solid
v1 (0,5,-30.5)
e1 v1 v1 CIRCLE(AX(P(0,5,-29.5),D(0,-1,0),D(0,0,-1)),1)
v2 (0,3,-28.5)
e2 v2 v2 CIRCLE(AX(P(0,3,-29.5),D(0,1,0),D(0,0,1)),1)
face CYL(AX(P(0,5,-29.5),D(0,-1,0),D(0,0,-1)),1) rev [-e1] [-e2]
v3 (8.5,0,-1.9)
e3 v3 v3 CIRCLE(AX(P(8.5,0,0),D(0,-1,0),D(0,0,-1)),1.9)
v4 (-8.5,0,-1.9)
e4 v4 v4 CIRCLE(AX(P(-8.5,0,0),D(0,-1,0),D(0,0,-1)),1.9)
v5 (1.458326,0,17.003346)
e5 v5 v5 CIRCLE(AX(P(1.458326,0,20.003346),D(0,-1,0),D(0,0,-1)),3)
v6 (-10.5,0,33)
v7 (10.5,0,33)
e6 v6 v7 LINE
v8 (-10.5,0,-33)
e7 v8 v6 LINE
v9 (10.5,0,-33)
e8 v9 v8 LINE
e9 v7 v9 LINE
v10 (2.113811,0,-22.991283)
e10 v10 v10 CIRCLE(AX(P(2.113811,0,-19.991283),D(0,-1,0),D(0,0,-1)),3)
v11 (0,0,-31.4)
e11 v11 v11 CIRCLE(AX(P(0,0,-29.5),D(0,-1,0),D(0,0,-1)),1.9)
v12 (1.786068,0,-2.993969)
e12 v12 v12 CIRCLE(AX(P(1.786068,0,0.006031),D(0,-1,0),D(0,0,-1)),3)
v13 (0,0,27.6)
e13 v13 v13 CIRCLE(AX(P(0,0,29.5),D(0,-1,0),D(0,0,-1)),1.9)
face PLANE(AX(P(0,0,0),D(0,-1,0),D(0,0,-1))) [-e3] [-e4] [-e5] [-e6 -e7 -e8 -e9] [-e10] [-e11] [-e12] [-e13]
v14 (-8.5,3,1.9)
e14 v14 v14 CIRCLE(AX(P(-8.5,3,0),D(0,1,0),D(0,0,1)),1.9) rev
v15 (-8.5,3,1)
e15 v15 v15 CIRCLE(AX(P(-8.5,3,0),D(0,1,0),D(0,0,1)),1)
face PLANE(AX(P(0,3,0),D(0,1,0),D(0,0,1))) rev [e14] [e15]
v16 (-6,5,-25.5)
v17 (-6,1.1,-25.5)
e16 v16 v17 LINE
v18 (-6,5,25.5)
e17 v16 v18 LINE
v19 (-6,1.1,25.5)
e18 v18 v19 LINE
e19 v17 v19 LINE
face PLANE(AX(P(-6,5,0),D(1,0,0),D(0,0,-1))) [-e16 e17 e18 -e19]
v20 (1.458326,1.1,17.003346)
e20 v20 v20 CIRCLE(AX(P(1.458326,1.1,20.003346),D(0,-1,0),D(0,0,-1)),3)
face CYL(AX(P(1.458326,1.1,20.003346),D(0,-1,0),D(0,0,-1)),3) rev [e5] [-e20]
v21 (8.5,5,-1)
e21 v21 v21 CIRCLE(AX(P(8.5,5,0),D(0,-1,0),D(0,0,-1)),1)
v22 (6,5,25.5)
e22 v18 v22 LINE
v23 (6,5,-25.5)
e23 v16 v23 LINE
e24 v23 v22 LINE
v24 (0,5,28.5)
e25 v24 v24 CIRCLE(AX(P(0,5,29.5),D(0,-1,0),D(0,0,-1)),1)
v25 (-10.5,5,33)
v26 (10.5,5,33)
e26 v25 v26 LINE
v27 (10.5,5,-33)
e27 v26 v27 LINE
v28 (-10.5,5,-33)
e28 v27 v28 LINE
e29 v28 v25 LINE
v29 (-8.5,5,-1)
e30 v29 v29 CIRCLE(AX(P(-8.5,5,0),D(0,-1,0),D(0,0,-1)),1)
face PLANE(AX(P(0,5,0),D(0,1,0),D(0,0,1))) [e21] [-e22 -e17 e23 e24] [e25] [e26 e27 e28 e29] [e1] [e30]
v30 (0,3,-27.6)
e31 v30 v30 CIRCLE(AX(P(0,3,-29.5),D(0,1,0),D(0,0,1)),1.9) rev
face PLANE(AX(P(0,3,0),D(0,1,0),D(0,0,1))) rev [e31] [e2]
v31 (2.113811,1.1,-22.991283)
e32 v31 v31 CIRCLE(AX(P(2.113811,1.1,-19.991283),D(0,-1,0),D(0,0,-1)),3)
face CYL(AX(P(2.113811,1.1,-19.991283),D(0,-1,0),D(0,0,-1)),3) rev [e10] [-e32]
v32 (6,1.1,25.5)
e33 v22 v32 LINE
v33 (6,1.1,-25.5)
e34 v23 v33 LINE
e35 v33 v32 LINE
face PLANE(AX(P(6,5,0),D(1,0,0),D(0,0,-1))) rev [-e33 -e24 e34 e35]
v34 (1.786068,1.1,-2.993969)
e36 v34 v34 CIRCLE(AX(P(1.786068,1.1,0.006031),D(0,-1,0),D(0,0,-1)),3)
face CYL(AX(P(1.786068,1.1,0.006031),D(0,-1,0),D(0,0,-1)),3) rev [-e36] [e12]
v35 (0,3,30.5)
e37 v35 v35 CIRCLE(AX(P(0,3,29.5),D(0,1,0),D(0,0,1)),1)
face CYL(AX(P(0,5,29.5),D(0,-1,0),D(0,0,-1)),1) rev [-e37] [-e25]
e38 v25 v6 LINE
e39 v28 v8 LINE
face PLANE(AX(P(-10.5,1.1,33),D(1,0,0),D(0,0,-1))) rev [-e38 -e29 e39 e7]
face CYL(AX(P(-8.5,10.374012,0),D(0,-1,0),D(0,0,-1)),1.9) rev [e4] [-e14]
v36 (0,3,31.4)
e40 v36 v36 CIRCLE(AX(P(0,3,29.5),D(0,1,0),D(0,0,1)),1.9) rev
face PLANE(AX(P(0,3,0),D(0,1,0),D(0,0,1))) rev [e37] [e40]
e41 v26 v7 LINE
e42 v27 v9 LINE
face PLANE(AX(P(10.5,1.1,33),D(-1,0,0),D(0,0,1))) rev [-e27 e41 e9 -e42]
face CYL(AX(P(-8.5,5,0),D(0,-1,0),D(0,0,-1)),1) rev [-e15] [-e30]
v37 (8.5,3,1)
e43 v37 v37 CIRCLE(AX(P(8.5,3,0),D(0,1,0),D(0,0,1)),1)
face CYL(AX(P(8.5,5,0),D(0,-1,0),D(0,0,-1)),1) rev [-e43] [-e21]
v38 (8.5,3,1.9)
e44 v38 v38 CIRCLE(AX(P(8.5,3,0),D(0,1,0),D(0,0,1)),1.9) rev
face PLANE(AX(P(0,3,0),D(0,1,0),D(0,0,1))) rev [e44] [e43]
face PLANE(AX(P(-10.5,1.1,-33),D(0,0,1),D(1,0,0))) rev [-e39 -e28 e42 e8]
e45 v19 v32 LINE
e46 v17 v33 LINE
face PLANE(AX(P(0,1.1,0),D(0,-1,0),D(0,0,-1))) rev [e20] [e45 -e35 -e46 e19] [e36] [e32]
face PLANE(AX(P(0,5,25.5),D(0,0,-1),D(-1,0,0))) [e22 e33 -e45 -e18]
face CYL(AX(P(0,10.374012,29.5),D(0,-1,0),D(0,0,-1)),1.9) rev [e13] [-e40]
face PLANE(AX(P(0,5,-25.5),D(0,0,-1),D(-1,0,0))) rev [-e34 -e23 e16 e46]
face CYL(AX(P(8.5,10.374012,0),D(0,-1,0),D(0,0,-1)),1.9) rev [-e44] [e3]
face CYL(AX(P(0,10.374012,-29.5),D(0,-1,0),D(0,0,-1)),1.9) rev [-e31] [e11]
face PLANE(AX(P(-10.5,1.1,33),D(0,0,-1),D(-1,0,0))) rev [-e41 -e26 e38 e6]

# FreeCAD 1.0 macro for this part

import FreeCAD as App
import Part
import Sketcher
Q = App.Units.Quantity


def add_polygon(sketch, points):
    """Adds a closed chain of lines whose ends are joined by coincident constraints."""
    first, n = sketch.GeometryCount, len(points)
    for a, b in zip(points, points[1:] + points[:1]):
        sketch.addGeometry(Part.LineSegment(App.Vector(*a, 0), App.Vector(*b, 0)), False)
    for i in range(n):
        sketch.addConstraint(Sketcher.Constraint("Coincident", first + i, 2, first + (i + 1) % n, 1))

doc = App.newDocument("Part")
body = doc.addObject("PartDesign::Body", "Body")

sketch1 = body.newObject("Sketcher::SketchObject", "Sketch")
sketch1.AttachmentSupport = (doc.getObject("XZ_Plane"), [""])
sketch1.MapMode = "FlatFace"
add_polygon(sketch1, [(-10.5, -33), (-10.5, 33), (10.5, 33), (10.5, -33)])
sketch1.addConstraint([
    Sketcher.Constraint("Vertical", 0),
    Sketcher.Constraint("Horizontal", 1),
    Sketcher.Constraint("Vertical", 2),
    Sketcher.Constraint("Horizontal", 3),
    Sketcher.Constraint("Symmetric", 0, 2, 2, 2, -1, 1),
    Sketcher.Constraint("DistanceX", 1, 1, 1, 2, Q("21 mm")),
    Sketcher.Constraint("DistanceY", 0, 1, 0, 2, Q("66 mm")),
])
pad1 = body.newObject("PartDesign::Pad", "Pad")
pad1.Profile = sketch1
pad1.Length = 1.1
pad1.Reversed = True

sketch2 = body.newObject("Sketcher::SketchObject", "Sketch001")
sketch2.AttachmentSupport = (doc.getObject("XZ_Plane"), [""])
sketch2.MapMode = "FlatFace"
sketch2.addGeometry([
    Part.Circle(App.Vector(1.458326, 20.003346, 0), App.Vector(0, 0, 1), 3),
    Part.Circle(App.Vector(1.786068, 0.006031, 0), App.Vector(0, 0, 1), 3),
    Part.Circle(App.Vector(2.113811, -19.991283, 0), App.Vector(0, 0, 1), 3),
], False)
sketch2.addConstraint([
    Sketcher.Constraint("Equal", 0, 1),
    Sketcher.Constraint("Equal", 1, 2),
    Sketcher.Constraint("Diameter", 0, Q("6 mm")),
    Sketcher.Constraint("DistanceX", -1, 1, 1, 3, Q("1.786068 mm")),
    Sketcher.Constraint("DistanceY", -1, 1, 1, 3, Q("0.006031 mm")),
    Sketcher.Constraint("DistanceX", -1, 1, 2, 3, Q("2.113811 mm")),
    Sketcher.Constraint("DistanceY", 2, 3, 0, 3, Q("39.994629 mm")),
    Sketcher.Constraint("DistanceX", -1, 1, 0, 3, Q("1.458326 mm")),
    Sketcher.Constraint("DistanceY", -1, 1, 0, 3, Q("20.003346 mm")),
])
pocket1 = body.newObject("PartDesign::Pocket", "Pocket")
pocket1.Profile = sketch2
pocket1.Type = "ThroughAll"

sketch3 = body.newObject("Sketcher::SketchObject", "Sketch002")
sketch3.AttachmentSupport = (doc.getObject("XZ_Plane"), [""])
sketch3.MapMode = "FlatFace"
sketch3.AttachmentOffset = App.Placement(App.Vector(0, 0, -1.1), App.Rotation())
add_polygon(sketch3, [(-10.5, -33), (-10.5, 33), (10.5, 33), (10.5, -33)])
add_polygon(sketch3, [(6, 25.5), (-6, 25.5), (-6, -25.5), (6, -25.5)])
sketch3.addConstraint([
    Sketcher.Constraint("Vertical", 0),
    Sketcher.Constraint("Horizontal", 1),
    Sketcher.Constraint("Vertical", 2),
    Sketcher.Constraint("Horizontal", 3),
    Sketcher.Constraint("Horizontal", 4),
    Sketcher.Constraint("Vertical", 5),
    Sketcher.Constraint("Horizontal", 6),
    Sketcher.Constraint("Vertical", 7),
    Sketcher.Constraint("Symmetric", 0, 2, 2, 2, -1, 1),
    Sketcher.Constraint("Symmetric", 4, 2, 6, 2, -1, 1),
    Sketcher.Constraint("DistanceX", 1, 1, 1, 2, Q("21 mm")),
    Sketcher.Constraint("DistanceX", 4, 2, 4, 1, Q("12 mm")),
    Sketcher.Constraint("DistanceY", 0, 1, 0, 2, Q("66 mm")),
    Sketcher.Constraint("DistanceY", 5, 2, 5, 1, Q("51 mm")),
])
pad2 = body.newObject("PartDesign::Pad", "Pad001")
pad2.Profile = sketch3
pad2.Length = 3.9
pad2.Reversed = True

sketch4 = body.newObject("Sketcher::SketchObject", "Sketch003")
sketch4.AttachmentSupport = (doc.getObject("XZ_Plane"), [""])
sketch4.MapMode = "FlatFace"
sketch4.addGeometry([
    Part.Circle(App.Vector(0, 29.5, 0), App.Vector(0, 0, 1), 1.9),
    Part.Circle(App.Vector(0, 29.5, 0), App.Vector(0, 0, 1), 1),
    Part.Circle(App.Vector(-8.5, 0, 0), App.Vector(0, 0, 1), 1.9),
    Part.Circle(App.Vector(-8.5, 0, 0), App.Vector(0, 0, 1), 1),
    Part.Circle(App.Vector(8.5, 0, 0), App.Vector(0, 0, 1), 1.9),
    Part.Circle(App.Vector(8.5, 0, 0), App.Vector(0, 0, 1), 1),
    Part.Circle(App.Vector(0, -29.5, 0), App.Vector(0, 0, 1), 1.9),
    Part.Circle(App.Vector(0, -29.5, 0), App.Vector(0, 0, 1), 1),
], False)
sketch4.addConstraint([
    Sketcher.Constraint("Coincident", 1, 3, 0, 3),
    Sketcher.Constraint("Coincident", 3, 3, 2, 3),
    Sketcher.Constraint("Coincident", 5, 3, 4, 3),
    Sketcher.Constraint("Coincident", 7, 3, 6, 3),
    Sketcher.Constraint("Equal", 0, 2),
    Sketcher.Constraint("Equal", 1, 3),
    Sketcher.Constraint("Equal", 2, 4),
    Sketcher.Constraint("Equal", 3, 5),
    Sketcher.Constraint("Equal", 4, 6),
    Sketcher.Constraint("Equal", 5, 7),
    Sketcher.Constraint("Symmetric", 2, 3, 4, 3, -1, 1),
    Sketcher.Constraint("Symmetric", 0, 3, 6, 3, -1, 1),
    Sketcher.Constraint("PointOnObject", 0, 3, -2),
    Sketcher.Constraint("PointOnObject", 2, 3, -1),
    Sketcher.Constraint("Diameter", 1, Q("2 mm")),
    Sketcher.Constraint("Diameter", 0, Q("3.8 mm")),
    Sketcher.Constraint("DistanceX", 2, 3, 4, 3, Q("17 mm")),
    Sketcher.Constraint("DistanceY", 6, 3, 0, 3, Q("59 mm")),
])
pocket2 = body.newObject("PartDesign::Pocket", "Pocket001")
pocket2.Profile = sketch4
pocket2.Length = 3

sketch5 = body.newObject("Sketcher::SketchObject", "Sketch004")
sketch5.AttachmentSupport = (doc.getObject("XZ_Plane"), [""])
sketch5.MapMode = "FlatFace"
sketch5.addGeometry([
    Part.Circle(App.Vector(-8.5, 0, 0), App.Vector(0, 0, 1), 1),
    Part.Circle(App.Vector(8.5, 0, 0), App.Vector(0, 0, 1), 1),
    Part.Circle(App.Vector(0, 29.5, 0), App.Vector(0, 0, 1), 1),
    Part.Circle(App.Vector(0, -29.5, 0), App.Vector(0, 0, 1), 1),
], False)
sketch5.addConstraint([
    Sketcher.Constraint("Equal", 0, 1),
    Sketcher.Constraint("Equal", 1, 2),
    Sketcher.Constraint("Equal", 2, 3),
    Sketcher.Constraint("Symmetric", 0, 3, 1, 3, -1, 1),
    Sketcher.Constraint("Symmetric", 2, 3, 3, 3, -1, 1),
    Sketcher.Constraint("PointOnObject", 0, 3, -1),
    Sketcher.Constraint("PointOnObject", 2, 3, -2),
    Sketcher.Constraint("Diameter", 0, Q("2 mm")),
    Sketcher.Constraint("DistanceX", 0, 3, 1, 3, Q("17 mm")),
    Sketcher.Constraint("DistanceY", 3, 3, 2, 3, Q("59 mm")),
])
pocket3 = body.newObject("PartDesign::Pocket", "Pocket002")
pocket3.Profile = sketch5
pocket3.Type = "ThroughAll"

doc.recompute()
